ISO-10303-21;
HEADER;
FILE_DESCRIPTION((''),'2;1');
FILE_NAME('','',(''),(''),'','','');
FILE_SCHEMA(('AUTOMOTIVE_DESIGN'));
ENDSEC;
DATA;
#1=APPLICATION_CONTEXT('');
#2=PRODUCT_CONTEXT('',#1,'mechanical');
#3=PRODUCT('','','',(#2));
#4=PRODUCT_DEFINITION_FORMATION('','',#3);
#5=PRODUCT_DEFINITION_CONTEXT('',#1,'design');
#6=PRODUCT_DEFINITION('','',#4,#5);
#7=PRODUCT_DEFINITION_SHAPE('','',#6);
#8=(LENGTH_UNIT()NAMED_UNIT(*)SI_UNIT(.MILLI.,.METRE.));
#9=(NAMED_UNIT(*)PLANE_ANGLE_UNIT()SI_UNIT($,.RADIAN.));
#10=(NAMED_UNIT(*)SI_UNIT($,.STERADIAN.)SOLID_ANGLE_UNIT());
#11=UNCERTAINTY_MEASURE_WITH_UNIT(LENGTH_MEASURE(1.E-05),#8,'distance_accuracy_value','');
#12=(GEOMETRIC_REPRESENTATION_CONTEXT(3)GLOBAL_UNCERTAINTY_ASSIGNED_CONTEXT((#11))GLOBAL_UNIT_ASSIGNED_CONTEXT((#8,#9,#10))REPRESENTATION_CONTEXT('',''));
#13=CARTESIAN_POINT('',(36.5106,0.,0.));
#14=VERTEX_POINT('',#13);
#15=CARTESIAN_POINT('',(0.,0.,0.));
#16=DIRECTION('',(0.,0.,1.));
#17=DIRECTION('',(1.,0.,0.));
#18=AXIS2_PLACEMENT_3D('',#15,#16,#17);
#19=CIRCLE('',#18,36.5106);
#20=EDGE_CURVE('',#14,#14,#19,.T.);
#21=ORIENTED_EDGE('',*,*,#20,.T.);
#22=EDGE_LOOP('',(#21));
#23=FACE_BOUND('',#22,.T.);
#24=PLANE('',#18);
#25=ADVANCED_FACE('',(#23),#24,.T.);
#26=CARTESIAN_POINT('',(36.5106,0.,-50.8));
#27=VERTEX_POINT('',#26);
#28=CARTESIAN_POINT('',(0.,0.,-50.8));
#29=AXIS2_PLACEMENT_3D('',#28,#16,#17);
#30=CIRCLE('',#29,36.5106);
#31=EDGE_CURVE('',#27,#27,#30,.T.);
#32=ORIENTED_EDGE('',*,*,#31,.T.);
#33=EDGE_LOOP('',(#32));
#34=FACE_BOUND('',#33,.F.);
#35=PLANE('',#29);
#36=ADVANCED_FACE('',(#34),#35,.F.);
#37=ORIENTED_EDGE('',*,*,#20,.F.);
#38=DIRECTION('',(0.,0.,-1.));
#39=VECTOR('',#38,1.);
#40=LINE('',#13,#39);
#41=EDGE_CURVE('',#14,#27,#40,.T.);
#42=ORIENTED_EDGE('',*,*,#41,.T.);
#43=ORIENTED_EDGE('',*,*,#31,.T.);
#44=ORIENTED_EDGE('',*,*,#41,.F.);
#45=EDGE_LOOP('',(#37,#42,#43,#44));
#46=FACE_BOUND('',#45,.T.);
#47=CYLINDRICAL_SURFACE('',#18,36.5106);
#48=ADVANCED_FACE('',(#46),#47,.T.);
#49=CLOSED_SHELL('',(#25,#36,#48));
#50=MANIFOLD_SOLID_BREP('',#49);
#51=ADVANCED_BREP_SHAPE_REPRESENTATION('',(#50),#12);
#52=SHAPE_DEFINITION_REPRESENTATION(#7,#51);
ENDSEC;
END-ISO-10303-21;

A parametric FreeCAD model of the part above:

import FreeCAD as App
import Part
import Sketcher

V = App.Vector
Q = App.Units.Quantity

doc = App.newDocument("Part")
params = doc.addObject("Spreadsheet::Sheet", "Params")
for row, (alias, value) in enumerate([
    ("pad1_length", "2 in"),
], start=1):
    params.set(f"A{row}", alias)
    params.set(f"B{row}", "=" + value)
    params.setAlias(f"B{row}", alias)

body = doc.addObject("PartDesign::Body", "Body")

# Sketch on XY plane
sketch1 = body.newObject("Sketcher::SketchObject", "Sketch")
sketch1.AttachmentSupport = (doc.getObject("XY_Plane"), [""])
sketch1.MapMode = "FlatFace"
sketch1.addGeometry(Part.Circle(V(0, 0, 0), V(0, 0, 1), 36.5106), False)
sketch1.addConstraint(Sketcher.Constraint("Coincident", 0, 3, -1, 1))
sketch1.addConstraint(Sketcher.Constraint("Diameter", 0, Q("73.0212 mm")))
pad1 = body.newObject("PartDesign::Pad", "Pad")
pad1.Profile = sketch1
pad1.setExpression("Length", "Params.pad1_length")
pad1.Reversed = True

doc.recompute()
